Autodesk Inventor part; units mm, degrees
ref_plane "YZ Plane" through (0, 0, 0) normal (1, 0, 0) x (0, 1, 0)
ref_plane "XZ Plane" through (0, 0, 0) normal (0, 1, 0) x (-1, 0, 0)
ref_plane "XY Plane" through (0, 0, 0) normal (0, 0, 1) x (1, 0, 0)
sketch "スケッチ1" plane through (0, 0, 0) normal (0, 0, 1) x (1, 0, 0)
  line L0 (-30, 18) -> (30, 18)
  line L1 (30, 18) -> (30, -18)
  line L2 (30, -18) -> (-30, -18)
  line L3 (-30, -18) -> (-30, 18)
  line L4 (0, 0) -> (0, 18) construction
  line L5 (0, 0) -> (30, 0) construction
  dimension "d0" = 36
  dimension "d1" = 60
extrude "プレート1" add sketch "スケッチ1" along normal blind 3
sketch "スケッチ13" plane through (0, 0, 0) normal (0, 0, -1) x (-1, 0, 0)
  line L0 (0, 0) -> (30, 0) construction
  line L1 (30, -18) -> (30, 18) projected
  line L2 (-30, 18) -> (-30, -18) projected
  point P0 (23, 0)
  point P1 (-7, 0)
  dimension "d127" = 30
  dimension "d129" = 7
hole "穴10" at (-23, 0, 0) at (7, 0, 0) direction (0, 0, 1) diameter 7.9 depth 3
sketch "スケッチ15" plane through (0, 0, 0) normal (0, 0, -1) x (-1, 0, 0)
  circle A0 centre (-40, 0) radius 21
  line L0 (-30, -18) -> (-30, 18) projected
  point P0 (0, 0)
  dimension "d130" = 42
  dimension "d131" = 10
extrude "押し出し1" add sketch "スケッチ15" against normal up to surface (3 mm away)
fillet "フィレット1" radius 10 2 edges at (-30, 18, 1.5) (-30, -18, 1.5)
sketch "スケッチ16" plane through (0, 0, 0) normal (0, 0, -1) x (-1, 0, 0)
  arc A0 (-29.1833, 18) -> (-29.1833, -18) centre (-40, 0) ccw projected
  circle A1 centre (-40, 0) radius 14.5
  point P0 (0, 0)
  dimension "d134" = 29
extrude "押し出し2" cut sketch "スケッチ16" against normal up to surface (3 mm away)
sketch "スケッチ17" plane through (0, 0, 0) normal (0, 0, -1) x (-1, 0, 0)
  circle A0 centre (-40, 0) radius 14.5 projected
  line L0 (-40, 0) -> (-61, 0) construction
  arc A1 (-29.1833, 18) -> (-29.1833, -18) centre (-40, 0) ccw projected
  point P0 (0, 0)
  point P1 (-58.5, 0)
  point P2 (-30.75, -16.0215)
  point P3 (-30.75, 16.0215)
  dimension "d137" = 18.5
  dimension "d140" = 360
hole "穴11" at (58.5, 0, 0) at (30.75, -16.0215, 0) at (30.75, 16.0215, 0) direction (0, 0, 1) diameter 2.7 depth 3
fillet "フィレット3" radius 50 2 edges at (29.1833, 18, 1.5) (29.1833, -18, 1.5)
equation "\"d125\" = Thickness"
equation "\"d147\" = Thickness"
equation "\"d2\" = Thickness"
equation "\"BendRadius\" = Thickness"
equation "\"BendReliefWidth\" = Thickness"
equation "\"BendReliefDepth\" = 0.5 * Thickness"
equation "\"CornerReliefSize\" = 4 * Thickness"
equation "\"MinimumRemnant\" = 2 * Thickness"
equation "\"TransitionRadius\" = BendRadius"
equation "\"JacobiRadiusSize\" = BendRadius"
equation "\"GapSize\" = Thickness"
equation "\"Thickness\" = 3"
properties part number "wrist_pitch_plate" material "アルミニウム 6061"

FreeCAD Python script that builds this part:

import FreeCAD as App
import Part
import Sketcher
from FreeCAD import Vector
Q = App.Units.Quantity


def edges_at(feature, points):
    """Names of the edges that pass closest to the given points."""
    edges = feature.Shape.Edges
    near = lambda p: min(range(len(edges)), key=lambda i: edges[i].distToShape(Part.Vertex(*p))[0])
    return sorted({f"Edge{near(p) + 1}" for p in points})


def add_polygon(sketch, points):
    """Adds a closed chain of lines whose ends are joined by coincident constraints."""
    first, n = sketch.GeometryCount, len(points)
    for a, b in zip(points, points[1:] + points[:1]):
        sketch.addGeometry(Part.LineSegment(App.Vector(*a, 0), App.Vector(*b, 0)), False)
    for i in range(n):
        sketch.addConstraint(Sketcher.Constraint("Coincident", first + i, 2, first + (i + 1) % n, 1))

doc = App.newDocument("Part")
params = doc.addObject("Spreadsheet::Sheet", "Params")
for row, (alias, value) in enumerate([
    ("sketch1_width", "60 mm"),
    ("sketch1_height", "36 mm"),
    ("pad1_length", "3 mm"),
    ("sketch2_diameter", "7.9 mm"),
    ("hole_diameter", "7.9 mm"),
    ("hole_depth", "3 mm"),
    ("sketch3_diameter", "42 mm"),
    ("pad2_length", "3 mm"),
    ("fillet_radius", "10 mm"),
    ("sketch4_diameter", "29 mm"),
    ("pocket1_length", "3 mm"),
    ("sketch5_diameter", "2.7 mm"),
    ("hole2_diameter", "2.7 mm"),
    ("hole2_depth", "3 mm"),
    ("fillet2_radius", "50 mm"),
], start=1):
    params.set(f"A{row}", alias)
    params.set(f"B{row}", "=" + value)
    params.setAlias(f"B{row}", alias)

body = doc.addObject("PartDesign::Body", "Body")

sketch1 = body.newObject("Sketcher::SketchObject", "Sketch")
sketch1.AttachmentSupport = (doc.getObject("XY_Plane"), [""])
sketch1.MapMode = "FlatFace"
add_polygon(sketch1, [(30, 18), (-30, 18), (-30, -18), (30, -18)])
sketch1.addConstraint([
    Sketcher.Constraint("Horizontal", 0),
    Sketcher.Constraint("Vertical", 1),
    Sketcher.Constraint("Horizontal", 2),
    Sketcher.Constraint("Vertical", 3),
    Sketcher.Constraint("Symmetric", 0, 2, 2, 2, -1, 1),
    Sketcher.Constraint("DistanceX", 0, 2, 0, 1, Q("60 mm")),
    Sketcher.Constraint("DistanceY", 1, 2, 1, 1, Q("36 mm")),
])
sketch1.setExpression("Constraints[9]", "Params.sketch1_width")
sketch1.setExpression("Constraints[10]", "Params.sketch1_height")
pad1 = body.newObject("PartDesign::Pad", "Pad")
pad1.Profile = sketch1
pad1.setExpression("Length", "Params.pad1_length")

sketch2 = body.newObject("Sketcher::SketchObject", "Sketch001")
sketch2.AttachmentSupport = (doc.getObject("XY_Plane"), [""])
sketch2.MapMode = "FlatFace"
sketch2.addGeometry([
    Part.Circle(Vector(-23, 0, 0), Vector(0, 0, 1), 4),
    Part.Circle(Vector(7, 0, 0), Vector(0, 0, 1), 4),
], False)
sketch2.addConstraint([
    Sketcher.Constraint("Equal", 0, 1),
    Sketcher.Constraint("PointOnObject", 0, 3, -1),
    Sketcher.Constraint("PointOnObject", 1, 3, -1),
    Sketcher.Constraint("Diameter", 0, Q("7.9 mm")),
    Sketcher.Constraint("DistanceX", 0, 3, -1, 1, Q("23 mm")),
    Sketcher.Constraint("DistanceX", -1, 1, 1, 3, Q("7 mm")),
])
sketch2.setExpression("Constraints[3]", "Params.sketch2_diameter")
doc.recompute()
hole = body.newObject("PartDesign::Hole", "Hole")
hole.Profile = sketch2
hole.ThreadType = "None"
hole.setExpression("Diameter", "Params.hole_diameter")
hole.DepthType = "Dimension"
hole.setExpression("Depth", "Params.hole_depth")
hole.DrillPoint = "Flat"
hole.Reversed = True

sketch3 = body.newObject("Sketcher::SketchObject", "Sketch002")
sketch3.AttachmentSupport = (doc.getObject("XY_Plane"), [""])
sketch3.MapMode = "FlatFace"
sketch3.addGeometry(Part.Circle(Vector(40, 0, 0), Vector(0, 0, 1), 21), False)
sketch3.addConstraint([
    Sketcher.Constraint("PointOnObject", 0, 3, -1),
    Sketcher.Constraint("Diameter", 0, Q("42 mm")),
    Sketcher.Constraint("DistanceX", -1, 1, 0, 3, Q("40 mm")),
])
sketch3.setExpression("Constraints[1]", "Params.sketch3_diameter")
pad2 = body.newObject("PartDesign::Pad", "Pad001")
pad2.Profile = sketch3
pad2.setExpression("Length", "Params.pad2_length")
doc.recompute()

fillet = body.newObject("PartDesign::Fillet", "Fillet")
fillet.Base = (pad2, edges_at(pad2, [(-30, 18, 1.5), (-30, -18, 1.5)]))
fillet.setExpression("Radius", "Params.fillet_radius")

sketch4 = body.newObject("Sketcher::SketchObject", "Sketch003")
sketch4.AttachmentSupport = (doc.getObject("XY_Plane"), [""])
sketch4.MapMode = "FlatFace"
sketch4.addGeometry(Part.Circle(Vector(40, 0, 0), Vector(0, 0, 1), 14), False)
sketch4.addConstraint([
    Sketcher.Constraint("PointOnObject", 0, 3, -1),
    Sketcher.Constraint("Diameter", 0, Q("29 mm")),
    Sketcher.Constraint("DistanceX", -1, 1, 0, 3, Q("40 mm")),
])
sketch4.setExpression("Constraints[1]", "Params.sketch4_diameter")
pocket1 = body.newObject("PartDesign::Pocket", "Pocket")
pocket1.Profile = sketch4
pocket1.setExpression("Length", "Params.pocket1_length")
pocket1.Reversed = True

sketch5 = body.newObject("Sketcher::SketchObject", "Sketch004")
sketch5.AttachmentSupport = (doc.getObject("XY_Plane"), [""])
sketch5.MapMode = "FlatFace"
sketch5.addGeometry([
    Part.Circle(Vector(58.5, 0, 0), Vector(0, 0, 1), 1.4),
    Part.Circle(Vector(30.8, -16, 0), Vector(0, 0, 1), 1.4),
    Part.Circle(Vector(30.8, 16, 0), Vector(0, 0, 1), 1.4),
], False)
sketch5.addConstraint([
    Sketcher.Constraint("Equal", 0, 1),
    Sketcher.Constraint("Equal", 1, 2),
    Sketcher.Constraint("Symmetric", 1, 3, 2, 3, -1),
    Sketcher.Constraint("PointOnObject", 0, 3, -1),
    Sketcher.Constraint("Diameter", 0, Q("2.7 mm")),
    Sketcher.Constraint("DistanceX", -1, 1, 0, 3, Q("58.5 mm")),
    Sketcher.Constraint("DistanceX", -1, 1, 1, 3, Q("30.75 mm")),
    Sketcher.Constraint("DistanceY", 1, 3, 2, 3, Q("32.043 mm")),
])
sketch5.setExpression("Constraints[4]", "Params.sketch5_diameter")
doc.recompute()
hole2 = body.newObject("PartDesign::Hole", "Hole001")
hole2.Profile = sketch5
hole2.ThreadType = "None"
hole2.setExpression("Diameter", "Params.hole2_diameter")
hole2.DepthType = "Dimension"
hole2.setExpression("Depth", "Params.hole2_depth")
hole2.DrillPoint = "Flat"
hole2.Reversed = True
doc.recompute()

fillet2 = body.newObject("PartDesign::Fillet", "Fillet001")
fillet2.Base = (hole2, edges_at(hole2, [(29.183, 18, 1.5), (29.183, -18, 1.5)]))
fillet2.setExpression("Radius", "Params.fillet2_radius")

doc.recompute()
